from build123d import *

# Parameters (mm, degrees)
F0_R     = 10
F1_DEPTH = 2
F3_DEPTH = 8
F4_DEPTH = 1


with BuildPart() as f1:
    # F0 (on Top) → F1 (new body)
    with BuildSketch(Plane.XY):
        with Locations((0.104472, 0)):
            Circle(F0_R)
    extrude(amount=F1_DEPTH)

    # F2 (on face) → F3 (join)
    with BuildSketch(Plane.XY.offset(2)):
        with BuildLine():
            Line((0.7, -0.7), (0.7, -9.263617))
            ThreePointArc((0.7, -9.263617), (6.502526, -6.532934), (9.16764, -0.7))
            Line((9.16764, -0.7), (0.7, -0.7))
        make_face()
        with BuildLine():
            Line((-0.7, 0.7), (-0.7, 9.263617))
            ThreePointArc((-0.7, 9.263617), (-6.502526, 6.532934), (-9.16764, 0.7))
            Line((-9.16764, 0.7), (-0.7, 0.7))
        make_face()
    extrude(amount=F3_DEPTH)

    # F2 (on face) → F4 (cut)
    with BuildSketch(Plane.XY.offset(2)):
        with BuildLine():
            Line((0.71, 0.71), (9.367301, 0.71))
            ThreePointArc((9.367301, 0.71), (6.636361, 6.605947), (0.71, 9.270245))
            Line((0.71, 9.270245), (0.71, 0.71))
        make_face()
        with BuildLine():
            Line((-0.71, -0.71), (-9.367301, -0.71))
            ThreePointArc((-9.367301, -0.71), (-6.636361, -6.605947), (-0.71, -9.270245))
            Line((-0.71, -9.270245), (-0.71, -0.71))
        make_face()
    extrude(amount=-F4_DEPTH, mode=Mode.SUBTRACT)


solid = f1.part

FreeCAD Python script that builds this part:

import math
import FreeCAD as App
import Part
import Sketcher

V = App.Vector
Q = App.Units.Quantity

doc = App.newDocument("Part")
body = doc.addObject("PartDesign::Body", "Body")

sketch1 = body.newObject("Sketcher::SketchObject", "Sketch")
sketch1.AttachmentSupport = (doc.getObject("XY_Plane"), [""])
sketch1.MapMode = "FlatFace"
sketch1.addGeometry(Part.Circle(V(0.104472, 0, 0), V(0, 0, 1), 10), False)
sketch1.addConstraint(Sketcher.Constraint("PointOnObject", 0, 3, -1))
sketch1.addConstraint(Sketcher.Constraint("Diameter", 0, Q("20 mm")))
sketch1.addConstraint(Sketcher.Constraint("DistanceX", -1, 1, 0, 3, Q("0.104472 mm")))
pad1 = body.newObject("PartDesign::Pad", "Pad")
pad1.Profile = sketch1
pad1.Length = 2

sketch2 = body.newObject("Sketcher::SketchObject", "Sketch001")
sketch2.AttachmentSupport = (doc.getObject("XY_Plane"), [""])
sketch2.MapMode = "FlatFace"
sketch2.AttachmentOffset = App.Placement(V(0, 0, 2), App.Rotation())
sketch2.addGeometry(Part.LineSegment(V(0.7, -0.7, 0), V(0.7, -9.263617, 0)), False)
sketch2.addGeometry(Part.ArcOfCircle(Part.Circle(V(-0.125458, 0.020768, 0), V(0, 0, 1), 9.321007), math.radians(-84.919293), math.radians(-4.434951)), False)
sketch2.addGeometry(Part.LineSegment(V(9.16764, -0.7, 0), V(0.7, -0.7, 0)), False)
sketch2.addGeometry(Part.LineSegment(V(-0.7, 0.7, 0), V(-0.7, 9.263617, 0)), False)
sketch2.addGeometry(Part.ArcOfCircle(Part.Circle(V(0.125458, -0.020768, 0), V(0, 0, 1), 9.321007), math.radians(95.080707), math.radians(175.565049)), False)
sketch2.addGeometry(Part.LineSegment(V(-9.16764, 0.7, 0), V(-0.7, 0.7, 0)), False)
sketch2.addConstraint(Sketcher.Constraint("Coincident", 0, 2, 1, 1))
sketch2.addConstraint(Sketcher.Constraint("Coincident", 1, 2, 2, 1))
sketch2.addConstraint(Sketcher.Constraint("Coincident", 2, 2, 0, 1))
sketch2.addConstraint(Sketcher.Constraint("Coincident", 3, 2, 4, 1))
sketch2.addConstraint(Sketcher.Constraint("Coincident", 4, 2, 5, 1))
sketch2.addConstraint(Sketcher.Constraint("Coincident", 5, 2, 3, 1))
sketch2.addConstraint(Sketcher.Constraint("Vertical", 0))
sketch2.addConstraint(Sketcher.Constraint("Horizontal", 2))
sketch2.addConstraint(Sketcher.Constraint("Vertical", 3))
sketch2.addConstraint(Sketcher.Constraint("Horizontal", 5))
sketch2.addConstraint(Sketcher.Constraint("Equal", 1, 4))
sketch2.addConstraint(Sketcher.Constraint("Symmetric", 1, 3, 4, 3, -1, 1))
sketch2.addConstraint(Sketcher.Constraint("Symmetric", 2, 2, 5, 2, -1, 1))
sketch2.addConstraint(Sketcher.Constraint("DistanceX", -1, 1, 0, 2, Q("0.7 mm")))
sketch2.addConstraint(Sketcher.Constraint("DistanceY", 1, 2, -1, 1, Q("0.7 mm")))
sketch2.addConstraint(Sketcher.Constraint("Radius", 1, Q("9.321007 mm")))
sketch2.addConstraint(Sketcher.Constraint("DistanceX", 2, 2, 2, 1, Q("8.46764 mm")))
sketch2.addConstraint(Sketcher.Constraint("DistanceX", 1, 3, 1, 2, Q("9.293098 mm")))
pad2 = body.newObject("PartDesign::Pad", "Pad001")
pad2.Profile = sketch2
pad2.Length = 8

sketch3 = body.newObject("Sketcher::SketchObject", "Sketch002")
sketch3.AttachmentSupport = (doc.getObject("XY_Plane"), [""])
sketch3.MapMode = "FlatFace"
sketch3.AttachmentOffset = App.Placement(V(0, 0, 2), App.Rotation())
sketch3.addGeometry(Part.LineSegment(V(0.71, 0.71, 0), V(9.367301, 0.71, 0)), False)
sketch3.addGeometry(Part.ArcOfCircle(Part.Circle(V(0.104473, 0.000001, 0), V(0, 0, 1), 9.289999), math.radians(4.38317), math.radians(86.26278)), False)
sketch3.addGeometry(Part.LineSegment(V(0.71, 9.270245, 0), V(0.71, 0.71, 0)), False)
sketch3.addGeometry(Part.LineSegment(V(-0.71, -0.71, 0), V(-9.367301, -0.71, 0)), False)
sketch3.addGeometry(Part.ArcOfCircle(Part.Circle(V(-0.104473, -0.000001, 0), V(0, 0, 1), 9.289999), math.radians(-175.61683), math.radians(-93.73722)), False)
sketch3.addGeometry(Part.LineSegment(V(-0.71, -9.270245, 0), V(-0.71, -0.71, 0)), False)
sketch3.addConstraint(Sketcher.Constraint("Coincident", 0, 2, 1, 1))
sketch3.addConstraint(Sketcher.Constraint("Coincident", 1, 2, 2, 1))
sketch3.addConstraint(Sketcher.Constraint("Coincident", 2, 2, 0, 1))
sketch3.addConstraint(Sketcher.Constraint("Coincident", 3, 2, 4, 1))
sketch3.addConstraint(Sketcher.Constraint("Coincident", 4, 2, 5, 1))
sketch3.addConstraint(Sketcher.Constraint("Coincident", 5, 2, 3, 1))
sketch3.addConstraint(Sketcher.Constraint("Horizontal", 0))
sketch3.addConstraint(Sketcher.Constraint("Vertical", 2))
sketch3.addConstraint(Sketcher.Constraint("Horizontal", 3))
sketch3.addConstraint(Sketcher.Constraint("Vertical", 5))
sketch3.addConstraint(Sketcher.Constraint("Equal", 1, 4))
sketch3.addConstraint(Sketcher.Constraint("Symmetric", 1, 3, 4, 3, -1, 1))
sketch3.addConstraint(Sketcher.Constraint("Symmetric", 2, 2, 5, 2, -1, 1))
sketch3.addConstraint(Sketcher.Constraint("PointOnObject", 1, 3, -1))
sketch3.addConstraint(Sketcher.Constraint("Radius", 1, Q("9.289999 mm")))
sketch3.addConstraint(Sketcher.Constraint("DistanceY", -1, 1, 0, 2, Q("0.71 mm")))
sketch3.addConstraint(Sketcher.Constraint("DistanceX", -1, 1, 1, 2, Q("0.71 mm")))
sketch3.addConstraint(Sketcher.Constraint("DistanceX", 0, 1, 0, 2, Q("8.657301 mm")))
pocket1 = body.newObject("PartDesign::Pocket", "Pocket")
pocket1.Profile = sketch3
pocket1.Length = 1

doc.recompute()
